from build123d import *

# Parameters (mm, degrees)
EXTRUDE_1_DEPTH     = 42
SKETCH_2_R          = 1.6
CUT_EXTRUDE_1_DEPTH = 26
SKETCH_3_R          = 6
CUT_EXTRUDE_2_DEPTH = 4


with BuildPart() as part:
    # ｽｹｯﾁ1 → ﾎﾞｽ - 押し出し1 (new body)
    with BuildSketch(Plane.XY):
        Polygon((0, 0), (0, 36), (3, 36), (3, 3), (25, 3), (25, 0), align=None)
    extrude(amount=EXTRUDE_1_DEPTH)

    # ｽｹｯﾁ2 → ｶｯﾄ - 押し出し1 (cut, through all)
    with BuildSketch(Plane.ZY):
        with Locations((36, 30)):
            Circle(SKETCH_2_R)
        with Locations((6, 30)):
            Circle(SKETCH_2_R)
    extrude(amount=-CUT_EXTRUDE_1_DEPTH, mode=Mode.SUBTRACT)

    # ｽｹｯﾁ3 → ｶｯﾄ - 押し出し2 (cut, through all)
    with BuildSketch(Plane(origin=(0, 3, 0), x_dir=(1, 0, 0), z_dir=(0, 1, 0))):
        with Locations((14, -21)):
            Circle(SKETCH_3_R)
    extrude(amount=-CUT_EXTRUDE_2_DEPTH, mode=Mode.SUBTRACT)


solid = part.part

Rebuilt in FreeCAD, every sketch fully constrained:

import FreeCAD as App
import Part
import Sketcher
Q = App.Units.Quantity

doc = App.newDocument("Part")
params = doc.addObject("Spreadsheet::Sheet", "Params")
for row, (alias, value) in enumerate([
    ("sketch1_width", "25 mm"),
    ("sketch1_width2", "22 mm"),
    ("sketch1_height", "36 mm"),
    ("pad1_length", "42 mm"),
    ("sketch2_diameter", "3.2 mm"),
    ("sketch3_diameter", "12 mm"),
], start=1):
    params.set(f"A{row}", alias)
    params.set(f"B{row}", "=" + value)
    params.setAlias(f"B{row}", alias)

body = doc.addObject("PartDesign::Body", "Body")

# Sketch on XY plane
sketch1 = doc.addObject("Sketcher::SketchObject", "Sketch")
body.addObject(sketch1)
sketch1.AttachmentSupport = (doc.XY_Plane, [""])
sketch1.MapMode = "FlatFace"
sketch1.addGeometry(Part.LineSegment(App.Vector(0, 36, 0), App.Vector(0, 0, 0)), False)
sketch1.addGeometry(Part.LineSegment(App.Vector(0, 0, 0), App.Vector(25, 0, 0)), False)
sketch1.addGeometry(Part.LineSegment(App.Vector(25, 0, 0), App.Vector(25, 3, 0)), False)
sketch1.addGeometry(Part.LineSegment(App.Vector(25, 3, 0), App.Vector(3, 3, 0)), False)
sketch1.addGeometry(Part.LineSegment(App.Vector(3, 3, 0), App.Vector(3, 36, 0)), False)
sketch1.addGeometry(Part.LineSegment(App.Vector(3, 36, 0), App.Vector(0, 36, 0)), False)
sketch1.addConstraint(Sketcher.Constraint("Coincident", 0, 2, 1, 1))
sketch1.addConstraint(Sketcher.Constraint("Coincident", 1, 2, 2, 1))
sketch1.addConstraint(Sketcher.Constraint("Coincident", 2, 2, 3, 1))
sketch1.addConstraint(Sketcher.Constraint("Coincident", 3, 2, 4, 1))
sketch1.addConstraint(Sketcher.Constraint("Coincident", 4, 2, 5, 1))
sketch1.addConstraint(Sketcher.Constraint("Coincident", 5, 2, 0, 1))
sketch1.addConstraint(Sketcher.Constraint("Vertical", 0))
sketch1.addConstraint(Sketcher.Constraint("Horizontal", 1))
sketch1.addConstraint(Sketcher.Constraint("Vertical", 2))
sketch1.addConstraint(Sketcher.Constraint("Horizontal", 3))
sketch1.addConstraint(Sketcher.Constraint("Vertical", 4))
sketch1.addConstraint(Sketcher.Constraint("Horizontal", 5))
sketch1.addConstraint(Sketcher.Constraint("Coincident", 0, 2, -1, 1))
sketch1.addConstraint(Sketcher.Constraint("Equal", 5, 2))
sketch1.addConstraint(Sketcher.Constraint("DistanceX", 1, 1, 1, 2, Q("25 mm")))
sketch1.addConstraint(Sketcher.Constraint("DistanceX", 3, 2, 3, 1, Q("22 mm")))
sketch1.addConstraint(Sketcher.Constraint("DistanceY", 0, 2, 0, 1, Q("36 mm")))
sketch1.setExpression("Constraints[14]", "Params.sketch1_width")
sketch1.setExpression("Constraints[15]", "Params.sketch1_width2")
sketch1.setExpression("Constraints[16]", "Params.sketch1_height")
pad1 = doc.addObject("PartDesign::Pad", "Pad")
body.addObject(pad1)
pad1.Profile = sketch1
pad1.setExpression("Length", "Params.pad1_length")

# Sketch on YZ plane
sketch2 = doc.addObject("Sketcher::SketchObject", "Sketch001")
body.addObject(sketch2)
sketch2.AttachmentSupport = (doc.YZ_Plane, [""])
sketch2.MapMode = "FlatFace"
sketch2.addGeometry(Part.Circle(App.Vector(30, 36, 0), App.Vector(0, 0, 1), 1.6), False)
sketch2.addGeometry(Part.Circle(App.Vector(30, 6, 0), App.Vector(0, 0, 1), 1.6), False)
sketch2.addConstraint(Sketcher.Constraint("Equal", 0, 1))
sketch2.addConstraint(Sketcher.Constraint("Vertical", 0, 3, 1, 3))
sketch2.addConstraint(Sketcher.Constraint("Diameter", 0, Q("3.2 mm")))
sketch2.addConstraint(Sketcher.Constraint("DistanceX", -1, 1, 0, 3, Q("30 mm")))
sketch2.addConstraint(Sketcher.Constraint("DistanceY", -1, 1, 0, 3, Q("36 mm")))
sketch2.addConstraint(Sketcher.Constraint("DistanceY", -1, 1, 1, 3, Q("6 mm")))
sketch2.setExpression("Constraints[2]", "Params.sketch2_diameter")
pocket1 = doc.addObject("PartDesign::Pocket", "Pocket")
body.addObject(pocket1)
pocket1.Profile = sketch2
pocket1.Type = "ThroughAll"
pocket1.Reversed = True

# Sketch on XZ plane
sketch3 = doc.addObject("Sketcher::SketchObject", "Sketch002")
body.addObject(sketch3)
sketch3.AttachmentSupport = (doc.XZ_Plane, [""])
sketch3.MapMode = "FlatFace"
sketch3.AttachmentOffset = App.Placement(App.Vector(0, 0, -3), App.Rotation())
sketch3.addGeometry(Part.Circle(App.Vector(14, 21, 0), App.Vector(0, 0, 1), 6), False)
sketch3.addConstraint(Sketcher.Constraint("Diameter", 0, Q("12 mm")))
sketch3.addConstraint(Sketcher.Constraint("DistanceX", -1, 1, 0, 3, Q("14 mm")))
sketch3.addConstraint(Sketcher.Constraint("DistanceY", -1, 1, 0, 3, Q("21 mm")))
sketch3.setExpression("Constraints[0]", "Params.sketch3_diameter")
pocket2 = doc.addObject("PartDesign::Pocket", "Pocket001")
body.addObject(pocket2)
pocket2.Profile = sketch3
pocket2.Type = "ThroughAll"
pocket2.Reversed = True

doc.recompute()
